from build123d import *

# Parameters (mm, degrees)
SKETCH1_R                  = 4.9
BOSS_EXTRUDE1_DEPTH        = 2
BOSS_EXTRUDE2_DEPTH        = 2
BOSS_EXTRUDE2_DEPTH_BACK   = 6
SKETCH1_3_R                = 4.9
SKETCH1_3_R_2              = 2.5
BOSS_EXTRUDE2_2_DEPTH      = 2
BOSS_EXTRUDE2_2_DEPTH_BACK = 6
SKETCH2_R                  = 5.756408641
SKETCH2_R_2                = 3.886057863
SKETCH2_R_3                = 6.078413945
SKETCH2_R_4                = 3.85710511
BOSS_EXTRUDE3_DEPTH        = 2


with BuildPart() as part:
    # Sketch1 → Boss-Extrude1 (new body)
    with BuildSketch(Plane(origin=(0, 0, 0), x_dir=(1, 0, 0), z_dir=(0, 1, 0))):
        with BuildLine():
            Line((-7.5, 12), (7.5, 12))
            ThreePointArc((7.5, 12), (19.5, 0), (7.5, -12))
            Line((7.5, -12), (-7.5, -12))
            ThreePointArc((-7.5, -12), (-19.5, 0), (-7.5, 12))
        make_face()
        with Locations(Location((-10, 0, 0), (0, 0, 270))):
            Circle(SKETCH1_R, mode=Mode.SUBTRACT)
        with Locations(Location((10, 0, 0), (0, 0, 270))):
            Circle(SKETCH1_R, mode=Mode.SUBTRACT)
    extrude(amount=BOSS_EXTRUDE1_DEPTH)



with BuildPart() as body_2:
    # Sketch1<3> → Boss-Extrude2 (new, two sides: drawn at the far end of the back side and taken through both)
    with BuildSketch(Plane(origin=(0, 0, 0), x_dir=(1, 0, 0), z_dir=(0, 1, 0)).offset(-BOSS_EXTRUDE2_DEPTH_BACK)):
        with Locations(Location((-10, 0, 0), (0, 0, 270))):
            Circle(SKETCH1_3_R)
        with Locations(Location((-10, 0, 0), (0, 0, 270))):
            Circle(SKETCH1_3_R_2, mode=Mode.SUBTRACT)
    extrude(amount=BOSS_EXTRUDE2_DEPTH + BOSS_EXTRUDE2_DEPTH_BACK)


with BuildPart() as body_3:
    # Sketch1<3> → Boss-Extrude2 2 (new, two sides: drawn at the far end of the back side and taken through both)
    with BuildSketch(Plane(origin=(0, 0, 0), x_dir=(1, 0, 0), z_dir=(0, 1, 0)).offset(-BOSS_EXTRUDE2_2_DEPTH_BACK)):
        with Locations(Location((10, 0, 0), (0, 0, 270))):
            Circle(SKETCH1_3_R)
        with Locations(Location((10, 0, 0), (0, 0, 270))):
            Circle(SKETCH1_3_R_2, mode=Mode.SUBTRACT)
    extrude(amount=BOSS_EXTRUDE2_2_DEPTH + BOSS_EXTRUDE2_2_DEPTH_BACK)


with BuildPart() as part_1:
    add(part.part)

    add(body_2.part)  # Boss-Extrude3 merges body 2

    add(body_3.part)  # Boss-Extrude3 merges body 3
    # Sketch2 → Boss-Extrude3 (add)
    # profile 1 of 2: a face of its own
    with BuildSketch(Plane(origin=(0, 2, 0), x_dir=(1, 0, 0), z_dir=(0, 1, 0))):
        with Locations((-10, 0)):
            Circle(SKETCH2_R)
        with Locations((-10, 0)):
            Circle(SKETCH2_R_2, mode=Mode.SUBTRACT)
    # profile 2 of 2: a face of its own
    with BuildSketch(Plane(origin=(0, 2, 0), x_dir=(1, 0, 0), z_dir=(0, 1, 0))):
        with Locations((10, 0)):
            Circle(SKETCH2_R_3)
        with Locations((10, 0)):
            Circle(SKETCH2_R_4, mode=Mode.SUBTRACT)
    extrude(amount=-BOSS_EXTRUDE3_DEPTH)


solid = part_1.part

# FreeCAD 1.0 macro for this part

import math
import FreeCAD as App
import Part
import Sketcher

V = App.Vector

doc = App.newDocument("Part")
body = doc.addObject("PartDesign::Body", "Body")

# Sketch on XZ plane
sketch1 = doc.addObject("Sketcher::SketchObject", "Sketch")
body.addObject(sketch1)
sketch1.AttachmentSupport = (doc.XZ_Plane, [""])
sketch1.MapMode = "FlatFace"
sketch1.addGeometry([
    Part.LineSegment(V(7.5, -12, 0), V(-7.5, -12, 0)),  # 0
    Part.ArcOfCircle(Part.Circle(V(-7.5, 0, 0), V(0, 0, 1), 12), math.radians(90), math.radians(270)),  # 1
    Part.LineSegment(V(-7.5, 12, 0), V(7.5, 12, 0)),  # 2
    Part.ArcOfCircle(Part.Circle(V(7.5, 0, 0), V(0, 0, 1), 12), math.radians(-90), math.radians(90)),  # 3
    Part.Circle(V(10, 0, 0), V(0, 0, 1), 4.9),  # 4
    Part.Circle(V(-10, 0, 0), V(0, 0, 1), 4.9),  # 5
], False)
sketch1.addConstraint([
    Sketcher.Constraint("Tangent", 0, 2, 1, 2),
    Sketcher.Constraint("Tangent", 1, 1, 2, 1),
    Sketcher.Constraint("Tangent", 2, 2, 3, 2),
    Sketcher.Constraint("Tangent", 3, 1, 0, 1),
    Sketcher.Constraint("Horizontal", 0),
    Sketcher.Constraint("Horizontal", 2),
    Sketcher.Constraint("Equal", 4, 5),
    Sketcher.Constraint("Symmetric", 1, 3, 3, 3, -1, 1),
    Sketcher.Constraint("Symmetric", 4, 3, 5, 3, -1, 1),
    Sketcher.Constraint("PointOnObject", 4, 3, -1),
    Sketcher.Constraint("Radius", 1, 12.0),
    Sketcher.Constraint("Diameter", 4, 9.8),
    Sketcher.Constraint("DistanceX", 0, 2, 0, 1, 15.0),
    Sketcher.Constraint("DistanceX", -1, 1, 4, 3, 10.0),
])
pad1 = doc.addObject("PartDesign::Pad", "Pad")
body.addObject(pad1)
pad1.Profile = sketch1
pad1.Length = 2
pad1.Reversed = True
body2 = doc.addObject("PartDesign::Body", "Body001")

# Sketch on XZ plane
sketch2 = doc.addObject("Sketcher::SketchObject", "Sketch001")
body2.addObject(sketch2)
sketch2.AttachmentSupport = (doc.getObject("XZ_Plane001"), [""])
sketch2.MapMode = "FlatFace"
sketch2.addGeometry([
    Part.Circle(V(-10, 0, 0), V(0, 0, 1), 4.9),
    Part.Circle(V(-10, 0, 0), V(0, 0, 1), 2.5),
], False)
sketch2.addConstraint([
    Sketcher.Constraint("Coincident", 1, 3, 0, 3),
    Sketcher.Constraint("PointOnObject", 0, 3, -1),
    Sketcher.Constraint("Diameter", 1, 5.0),
    Sketcher.Constraint("Diameter", 0, 9.8),
    Sketcher.Constraint("DistanceX", 0, 3, -1, 1, 10.0),
])
pad2 = doc.addObject("PartDesign::Pad", "Pad001")
body2.addObject(pad2)
pad2.Profile = sketch2
pad2.Type = "TwoLengths"
pad2.Length = 2
pad2.Length2 = 6
pad2.Reversed = True
body3 = doc.addObject("PartDesign::Body", "Body002")

# Sketch on XZ plane
sketch3 = doc.addObject("Sketcher::SketchObject", "Sketch002")
body3.addObject(sketch3)
sketch3.AttachmentSupport = (doc.getObject("XZ_Plane002"), [""])
sketch3.MapMode = "FlatFace"
sketch3.addGeometry([
    Part.Circle(V(10, 0, 0), V(0, 0, 1), 4.9),
    Part.Circle(V(10, 0, 0), V(0, 0, 1), 2.5),
], False)
sketch3.addConstraint([
    Sketcher.Constraint("Coincident", 1, 3, 0, 3),
    Sketcher.Constraint("PointOnObject", 0, 3, -1),
    Sketcher.Constraint("Diameter", 1, 5.0),
    Sketcher.Constraint("Diameter", 0, 9.8),
    Sketcher.Constraint("DistanceX", -1, 1, 0, 3, 10.0),
])
pad3 = doc.addObject("PartDesign::Pad", "Pad002")
body3.addObject(pad3)
pad3.Profile = sketch3
pad3.Type = "TwoLengths"
pad3.Length = 2
pad3.Length2 = 6
pad3.Reversed = True
doc.recompute()

boolean = doc.addObject("PartDesign::Boolean", "Boolean")
body.addObject(boolean)
boolean.Type = "Fuse"
boolean.addObjects([body2])
doc.recompute()

boolean2 = doc.addObject("PartDesign::Boolean", "Boolean001")
body.addObject(boolean2)
boolean2.Type = "Fuse"
boolean2.addObjects([body3])

# Sketch on XZ plane
sketch4 = doc.addObject("Sketcher::SketchObject", "Sketch003")
body.addObject(sketch4)
sketch4.AttachmentSupport = (doc.XZ_Plane, [""])
sketch4.MapMode = "FlatFace"
sketch4.AttachmentOffset = App.Placement(V(0, 0, -2), App.Rotation())
sketch4.addGeometry([
    Part.Circle(V(-10, 0, 0), V(0, 0, 1), 5.8),
    Part.Circle(V(-10, 0, 0), V(0, 0, 1), 3.9),
    Part.Circle(V(10, 0, 0), V(0, 0, 1), 6.1),
    Part.Circle(V(10, 0, 0), V(0, 0, 1), 3.9),
], False)
sketch4.addConstraint([
    Sketcher.Constraint("Coincident", 1, 3, 0, 3),
    Sketcher.Constraint("Coincident", 3, 3, 2, 3),
    Sketcher.Constraint("Symmetric", 0, 3, 2, 3, -1, 1),
    Sketcher.Constraint("PointOnObject", 0, 3, -1),
    Sketcher.Constraint("DistanceX", 0, 3, -1, 1, 10.0),
    Sketcher.Constraint("Diameter", 3, 7.71421),
    Sketcher.Constraint("Diameter", 0, 11.512817),
    Sketcher.Constraint("Diameter", 1, 7.772116),
    Sketcher.Constraint("Diameter", 2, 12.156828),
])
pad4 = doc.addObject("PartDesign::Pad", "Pad003")
body.addObject(pad4)
pad4.Profile = sketch4
pad4.Length = 2

doc.recompute()
